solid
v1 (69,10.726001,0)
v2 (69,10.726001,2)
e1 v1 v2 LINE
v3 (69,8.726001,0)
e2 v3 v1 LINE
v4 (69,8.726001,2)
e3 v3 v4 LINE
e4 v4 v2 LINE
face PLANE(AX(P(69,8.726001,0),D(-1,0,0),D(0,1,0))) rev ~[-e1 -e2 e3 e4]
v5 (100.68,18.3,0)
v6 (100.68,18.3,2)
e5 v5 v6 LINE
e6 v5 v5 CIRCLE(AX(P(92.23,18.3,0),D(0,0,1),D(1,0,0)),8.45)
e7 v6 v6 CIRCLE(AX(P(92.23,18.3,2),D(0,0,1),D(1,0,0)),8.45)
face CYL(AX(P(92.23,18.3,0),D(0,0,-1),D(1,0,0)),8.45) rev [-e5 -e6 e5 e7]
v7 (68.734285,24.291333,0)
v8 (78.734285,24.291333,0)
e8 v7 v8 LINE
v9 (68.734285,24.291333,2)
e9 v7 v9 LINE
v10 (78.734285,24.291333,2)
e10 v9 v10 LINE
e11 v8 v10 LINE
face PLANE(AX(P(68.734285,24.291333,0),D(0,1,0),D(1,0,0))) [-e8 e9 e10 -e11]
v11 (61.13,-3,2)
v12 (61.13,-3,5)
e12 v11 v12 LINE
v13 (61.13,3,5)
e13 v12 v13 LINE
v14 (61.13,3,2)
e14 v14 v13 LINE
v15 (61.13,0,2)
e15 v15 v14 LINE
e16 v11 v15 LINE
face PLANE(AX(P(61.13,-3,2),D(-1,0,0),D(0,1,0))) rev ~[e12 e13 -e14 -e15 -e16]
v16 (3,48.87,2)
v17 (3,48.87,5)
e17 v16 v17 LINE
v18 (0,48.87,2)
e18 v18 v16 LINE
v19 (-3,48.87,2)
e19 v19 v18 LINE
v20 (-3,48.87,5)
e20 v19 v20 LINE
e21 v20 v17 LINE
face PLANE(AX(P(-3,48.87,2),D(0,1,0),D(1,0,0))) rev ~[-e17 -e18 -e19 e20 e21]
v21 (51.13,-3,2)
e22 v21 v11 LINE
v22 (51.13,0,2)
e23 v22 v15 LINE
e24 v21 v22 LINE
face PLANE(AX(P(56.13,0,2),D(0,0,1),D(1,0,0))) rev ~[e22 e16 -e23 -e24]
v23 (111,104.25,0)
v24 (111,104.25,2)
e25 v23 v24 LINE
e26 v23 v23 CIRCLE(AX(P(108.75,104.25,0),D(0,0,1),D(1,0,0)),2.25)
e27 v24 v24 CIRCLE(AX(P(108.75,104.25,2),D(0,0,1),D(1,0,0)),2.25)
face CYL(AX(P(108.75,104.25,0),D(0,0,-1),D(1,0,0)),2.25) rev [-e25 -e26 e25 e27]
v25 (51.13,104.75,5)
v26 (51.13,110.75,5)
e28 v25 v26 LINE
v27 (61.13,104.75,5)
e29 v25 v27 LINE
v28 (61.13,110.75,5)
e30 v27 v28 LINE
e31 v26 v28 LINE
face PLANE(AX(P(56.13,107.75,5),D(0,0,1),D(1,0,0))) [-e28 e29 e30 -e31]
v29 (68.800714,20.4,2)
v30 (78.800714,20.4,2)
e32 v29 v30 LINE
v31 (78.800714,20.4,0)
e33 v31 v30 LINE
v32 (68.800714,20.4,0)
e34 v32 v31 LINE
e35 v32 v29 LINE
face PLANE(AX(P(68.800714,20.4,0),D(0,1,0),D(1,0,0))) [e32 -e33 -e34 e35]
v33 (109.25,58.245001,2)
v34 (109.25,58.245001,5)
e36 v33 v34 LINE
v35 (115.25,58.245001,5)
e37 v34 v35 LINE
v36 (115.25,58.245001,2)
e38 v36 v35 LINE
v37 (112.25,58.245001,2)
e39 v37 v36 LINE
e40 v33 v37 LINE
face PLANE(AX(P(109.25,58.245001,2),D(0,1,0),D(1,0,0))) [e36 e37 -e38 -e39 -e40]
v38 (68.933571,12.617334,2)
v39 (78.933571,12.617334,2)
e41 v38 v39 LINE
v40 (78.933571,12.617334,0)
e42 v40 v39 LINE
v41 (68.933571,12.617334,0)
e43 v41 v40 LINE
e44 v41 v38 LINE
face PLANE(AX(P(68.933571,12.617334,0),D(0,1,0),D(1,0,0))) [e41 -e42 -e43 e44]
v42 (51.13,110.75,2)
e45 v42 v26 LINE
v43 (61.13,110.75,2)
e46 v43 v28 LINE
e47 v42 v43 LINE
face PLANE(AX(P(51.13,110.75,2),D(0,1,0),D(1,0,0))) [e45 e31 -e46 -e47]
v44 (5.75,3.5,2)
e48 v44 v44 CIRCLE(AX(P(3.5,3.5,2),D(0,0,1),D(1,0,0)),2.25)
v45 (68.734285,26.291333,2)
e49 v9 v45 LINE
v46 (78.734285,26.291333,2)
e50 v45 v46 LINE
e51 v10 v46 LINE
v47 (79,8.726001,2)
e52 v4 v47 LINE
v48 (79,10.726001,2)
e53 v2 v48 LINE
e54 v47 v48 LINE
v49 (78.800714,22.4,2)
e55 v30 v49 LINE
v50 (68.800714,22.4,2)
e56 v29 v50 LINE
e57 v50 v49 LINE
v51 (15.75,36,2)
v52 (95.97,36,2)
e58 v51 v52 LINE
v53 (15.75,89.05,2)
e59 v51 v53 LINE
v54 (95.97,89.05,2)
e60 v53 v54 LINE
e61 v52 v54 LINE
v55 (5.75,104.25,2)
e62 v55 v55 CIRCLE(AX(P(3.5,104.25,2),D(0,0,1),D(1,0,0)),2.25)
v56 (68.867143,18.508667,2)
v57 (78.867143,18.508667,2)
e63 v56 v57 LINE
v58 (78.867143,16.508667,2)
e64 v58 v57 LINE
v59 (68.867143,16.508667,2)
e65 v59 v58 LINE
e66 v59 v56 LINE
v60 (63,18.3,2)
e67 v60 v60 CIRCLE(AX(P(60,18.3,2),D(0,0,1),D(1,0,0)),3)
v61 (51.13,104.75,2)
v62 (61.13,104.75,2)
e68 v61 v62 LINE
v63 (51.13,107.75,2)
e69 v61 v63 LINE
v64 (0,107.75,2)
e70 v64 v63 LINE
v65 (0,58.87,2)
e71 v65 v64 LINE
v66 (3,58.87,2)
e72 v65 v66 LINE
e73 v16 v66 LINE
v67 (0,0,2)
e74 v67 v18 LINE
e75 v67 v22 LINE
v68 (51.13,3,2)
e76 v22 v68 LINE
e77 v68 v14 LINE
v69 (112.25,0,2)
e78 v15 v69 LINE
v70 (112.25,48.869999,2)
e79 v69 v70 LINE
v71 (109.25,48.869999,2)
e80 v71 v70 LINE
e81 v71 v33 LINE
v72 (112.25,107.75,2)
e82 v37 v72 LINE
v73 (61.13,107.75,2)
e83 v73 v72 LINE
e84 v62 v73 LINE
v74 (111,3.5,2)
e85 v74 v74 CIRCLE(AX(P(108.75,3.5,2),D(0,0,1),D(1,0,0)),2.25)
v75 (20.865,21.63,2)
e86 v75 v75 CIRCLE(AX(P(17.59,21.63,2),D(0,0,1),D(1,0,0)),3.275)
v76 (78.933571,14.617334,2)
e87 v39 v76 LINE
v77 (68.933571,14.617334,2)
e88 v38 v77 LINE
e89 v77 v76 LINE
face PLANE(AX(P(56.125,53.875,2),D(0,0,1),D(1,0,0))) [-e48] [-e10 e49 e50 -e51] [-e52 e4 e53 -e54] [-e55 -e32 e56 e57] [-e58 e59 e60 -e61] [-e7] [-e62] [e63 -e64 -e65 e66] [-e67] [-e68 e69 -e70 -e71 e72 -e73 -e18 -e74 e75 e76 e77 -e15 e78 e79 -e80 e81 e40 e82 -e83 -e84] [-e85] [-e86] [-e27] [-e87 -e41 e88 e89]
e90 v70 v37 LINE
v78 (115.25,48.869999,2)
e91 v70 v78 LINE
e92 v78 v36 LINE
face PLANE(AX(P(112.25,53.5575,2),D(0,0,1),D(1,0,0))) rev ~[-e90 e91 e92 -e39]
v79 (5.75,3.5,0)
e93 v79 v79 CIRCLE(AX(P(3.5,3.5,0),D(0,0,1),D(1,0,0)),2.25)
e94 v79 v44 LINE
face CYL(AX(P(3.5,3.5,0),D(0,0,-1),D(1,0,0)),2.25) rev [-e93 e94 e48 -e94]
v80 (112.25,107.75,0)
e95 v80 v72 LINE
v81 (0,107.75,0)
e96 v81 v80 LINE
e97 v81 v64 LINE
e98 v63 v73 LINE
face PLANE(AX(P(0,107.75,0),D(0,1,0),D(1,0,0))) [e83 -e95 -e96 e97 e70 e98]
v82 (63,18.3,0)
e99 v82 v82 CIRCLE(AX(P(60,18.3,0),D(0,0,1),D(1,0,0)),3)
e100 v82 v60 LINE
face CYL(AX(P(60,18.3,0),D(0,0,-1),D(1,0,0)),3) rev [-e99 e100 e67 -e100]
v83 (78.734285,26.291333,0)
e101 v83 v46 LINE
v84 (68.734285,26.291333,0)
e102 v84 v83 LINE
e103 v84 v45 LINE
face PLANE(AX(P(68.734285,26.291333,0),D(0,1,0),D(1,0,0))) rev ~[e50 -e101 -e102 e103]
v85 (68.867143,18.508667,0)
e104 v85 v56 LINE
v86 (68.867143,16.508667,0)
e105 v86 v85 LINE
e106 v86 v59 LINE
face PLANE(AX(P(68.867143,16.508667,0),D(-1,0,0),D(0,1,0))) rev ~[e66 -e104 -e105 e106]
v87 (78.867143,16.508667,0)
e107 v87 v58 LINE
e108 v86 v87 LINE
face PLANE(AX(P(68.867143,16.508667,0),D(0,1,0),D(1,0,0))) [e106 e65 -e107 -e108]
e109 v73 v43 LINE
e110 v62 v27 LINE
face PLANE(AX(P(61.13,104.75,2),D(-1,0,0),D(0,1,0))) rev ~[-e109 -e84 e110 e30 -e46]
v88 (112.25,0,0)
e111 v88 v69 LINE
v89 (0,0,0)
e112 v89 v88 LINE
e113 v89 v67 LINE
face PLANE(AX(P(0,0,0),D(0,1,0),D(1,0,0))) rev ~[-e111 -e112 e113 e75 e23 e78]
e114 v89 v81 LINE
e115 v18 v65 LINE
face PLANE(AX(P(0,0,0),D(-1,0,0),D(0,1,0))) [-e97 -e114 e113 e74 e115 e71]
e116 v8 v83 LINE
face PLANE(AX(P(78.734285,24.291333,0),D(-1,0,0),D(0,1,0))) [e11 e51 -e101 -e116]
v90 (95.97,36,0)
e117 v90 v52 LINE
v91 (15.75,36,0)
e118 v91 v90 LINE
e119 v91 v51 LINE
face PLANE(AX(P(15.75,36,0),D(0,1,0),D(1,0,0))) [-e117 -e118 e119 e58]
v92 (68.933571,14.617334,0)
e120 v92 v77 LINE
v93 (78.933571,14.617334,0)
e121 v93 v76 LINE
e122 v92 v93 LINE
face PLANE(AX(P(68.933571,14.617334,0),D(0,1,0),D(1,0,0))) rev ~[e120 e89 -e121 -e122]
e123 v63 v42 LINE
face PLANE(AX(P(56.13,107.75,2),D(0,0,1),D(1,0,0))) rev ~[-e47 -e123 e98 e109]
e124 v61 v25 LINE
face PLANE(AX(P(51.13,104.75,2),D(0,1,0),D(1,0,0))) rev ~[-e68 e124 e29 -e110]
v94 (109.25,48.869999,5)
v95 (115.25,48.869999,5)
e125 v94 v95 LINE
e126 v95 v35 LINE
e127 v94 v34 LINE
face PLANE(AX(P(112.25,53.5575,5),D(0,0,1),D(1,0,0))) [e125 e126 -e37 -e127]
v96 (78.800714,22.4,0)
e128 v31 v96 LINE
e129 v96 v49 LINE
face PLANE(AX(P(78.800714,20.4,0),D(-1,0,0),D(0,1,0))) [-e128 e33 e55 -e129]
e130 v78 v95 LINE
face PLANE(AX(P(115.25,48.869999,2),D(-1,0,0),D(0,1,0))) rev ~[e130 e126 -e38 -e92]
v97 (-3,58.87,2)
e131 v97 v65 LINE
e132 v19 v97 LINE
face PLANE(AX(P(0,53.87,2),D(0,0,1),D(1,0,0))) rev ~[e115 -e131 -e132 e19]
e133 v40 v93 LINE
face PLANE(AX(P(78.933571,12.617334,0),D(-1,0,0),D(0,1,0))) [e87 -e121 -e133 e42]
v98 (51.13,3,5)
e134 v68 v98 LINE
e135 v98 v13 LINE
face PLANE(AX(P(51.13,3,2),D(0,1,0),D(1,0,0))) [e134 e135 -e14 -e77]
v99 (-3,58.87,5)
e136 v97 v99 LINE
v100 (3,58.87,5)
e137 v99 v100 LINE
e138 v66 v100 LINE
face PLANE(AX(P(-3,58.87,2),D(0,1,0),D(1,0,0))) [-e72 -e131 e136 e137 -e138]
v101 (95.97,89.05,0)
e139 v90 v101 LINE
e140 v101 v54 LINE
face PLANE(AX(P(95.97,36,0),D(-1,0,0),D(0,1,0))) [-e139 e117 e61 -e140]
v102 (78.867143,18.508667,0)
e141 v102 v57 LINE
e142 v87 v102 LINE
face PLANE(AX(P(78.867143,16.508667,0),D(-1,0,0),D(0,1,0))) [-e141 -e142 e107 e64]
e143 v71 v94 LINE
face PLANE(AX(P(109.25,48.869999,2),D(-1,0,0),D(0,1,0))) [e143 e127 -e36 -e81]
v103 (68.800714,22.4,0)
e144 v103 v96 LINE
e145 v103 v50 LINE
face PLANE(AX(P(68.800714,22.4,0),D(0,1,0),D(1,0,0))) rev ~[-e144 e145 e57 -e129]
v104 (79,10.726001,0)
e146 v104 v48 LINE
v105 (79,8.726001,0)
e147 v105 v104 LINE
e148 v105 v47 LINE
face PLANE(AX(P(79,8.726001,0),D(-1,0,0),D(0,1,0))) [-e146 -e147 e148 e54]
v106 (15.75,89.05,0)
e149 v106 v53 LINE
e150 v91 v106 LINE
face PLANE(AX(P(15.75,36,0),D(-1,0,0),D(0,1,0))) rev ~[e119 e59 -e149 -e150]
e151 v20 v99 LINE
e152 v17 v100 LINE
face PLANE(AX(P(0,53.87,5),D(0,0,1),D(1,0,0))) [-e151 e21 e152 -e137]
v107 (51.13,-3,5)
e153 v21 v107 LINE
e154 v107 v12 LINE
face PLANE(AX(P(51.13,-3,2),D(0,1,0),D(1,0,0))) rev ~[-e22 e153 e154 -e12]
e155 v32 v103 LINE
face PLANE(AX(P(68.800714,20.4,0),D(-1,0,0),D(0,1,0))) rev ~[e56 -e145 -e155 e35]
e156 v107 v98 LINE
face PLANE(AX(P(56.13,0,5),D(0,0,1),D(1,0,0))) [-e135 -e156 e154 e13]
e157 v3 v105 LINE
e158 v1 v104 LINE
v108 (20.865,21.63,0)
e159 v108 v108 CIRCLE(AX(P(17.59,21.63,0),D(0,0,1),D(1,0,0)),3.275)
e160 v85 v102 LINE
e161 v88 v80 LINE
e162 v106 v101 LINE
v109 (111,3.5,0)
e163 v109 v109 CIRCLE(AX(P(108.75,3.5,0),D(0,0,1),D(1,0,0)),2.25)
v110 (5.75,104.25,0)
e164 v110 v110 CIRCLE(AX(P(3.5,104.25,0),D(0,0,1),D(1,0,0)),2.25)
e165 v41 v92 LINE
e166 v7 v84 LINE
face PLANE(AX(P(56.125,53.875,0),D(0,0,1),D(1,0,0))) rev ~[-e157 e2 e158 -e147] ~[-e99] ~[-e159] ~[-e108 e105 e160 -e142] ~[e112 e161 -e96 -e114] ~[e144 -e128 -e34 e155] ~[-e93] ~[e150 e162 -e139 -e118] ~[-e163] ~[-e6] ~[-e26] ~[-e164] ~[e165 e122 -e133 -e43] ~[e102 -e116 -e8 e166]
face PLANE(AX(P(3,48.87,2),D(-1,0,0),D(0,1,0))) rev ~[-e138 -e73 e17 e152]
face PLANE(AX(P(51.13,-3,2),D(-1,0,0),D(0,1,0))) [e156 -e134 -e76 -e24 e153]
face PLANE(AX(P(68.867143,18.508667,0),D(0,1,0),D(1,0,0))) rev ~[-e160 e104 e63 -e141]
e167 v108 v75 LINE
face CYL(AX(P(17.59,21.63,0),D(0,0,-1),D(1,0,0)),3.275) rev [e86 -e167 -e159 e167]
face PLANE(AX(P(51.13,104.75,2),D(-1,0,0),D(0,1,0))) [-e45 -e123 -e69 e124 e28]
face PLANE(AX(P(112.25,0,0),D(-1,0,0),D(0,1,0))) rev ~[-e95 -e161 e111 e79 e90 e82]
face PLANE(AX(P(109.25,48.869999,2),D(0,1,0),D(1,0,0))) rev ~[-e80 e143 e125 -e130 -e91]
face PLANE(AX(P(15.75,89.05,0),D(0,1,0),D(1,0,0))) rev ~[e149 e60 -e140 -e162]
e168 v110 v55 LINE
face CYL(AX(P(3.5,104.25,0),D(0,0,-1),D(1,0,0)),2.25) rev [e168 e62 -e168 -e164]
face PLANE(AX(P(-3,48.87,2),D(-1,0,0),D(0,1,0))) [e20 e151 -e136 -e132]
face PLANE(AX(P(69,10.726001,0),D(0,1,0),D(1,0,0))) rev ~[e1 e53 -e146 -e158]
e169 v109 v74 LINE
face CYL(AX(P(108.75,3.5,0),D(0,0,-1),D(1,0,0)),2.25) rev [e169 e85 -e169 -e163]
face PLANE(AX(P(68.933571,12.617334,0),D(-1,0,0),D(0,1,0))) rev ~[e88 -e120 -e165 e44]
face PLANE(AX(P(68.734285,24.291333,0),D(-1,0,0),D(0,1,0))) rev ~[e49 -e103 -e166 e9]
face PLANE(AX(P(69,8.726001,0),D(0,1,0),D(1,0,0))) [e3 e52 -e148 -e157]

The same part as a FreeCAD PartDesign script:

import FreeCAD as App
import Part
import Sketcher

V = App.Vector


def add_polygon(sketch, points):
    """Adds a closed chain of lines whose ends are joined by coincident constraints."""
    first, n = sketch.GeometryCount, len(points)
    for a, b in zip(points, points[1:] + points[:1]):
        sketch.addGeometry(Part.LineSegment(App.Vector(*a, 0), App.Vector(*b, 0)), False)
    for i in range(n):
        sketch.addConstraint(Sketcher.Constraint("Coincident", first + i, 2, first + (i + 1) % n, 1))

doc = App.newDocument("Part")
body = doc.addObject("PartDesign::Body", "Body")

# Sketch on XY plane
sketch1 = body.newObject("Sketcher::SketchObject", "Sketch")
sketch1.AttachmentSupport = (doc.getObject("XY_Plane"), [""])
sketch1.MapMode = "FlatFace"
add_polygon(sketch1, [(0, 107.8), (0, 0), (112.2, 0), (112.2, 107.8)])  # lines 0-3
sketch1.addGeometry(Part.Circle(V(3.5, 3.5, 0), V(0, 0, 1), 2.2), False)  # 4
sketch1.addGeometry(Part.Circle(V(17.6, 21.6, 0), V(0, 0, 1), 3.3), False)  # 5
add_polygon(sketch1, [(79, 8.7), (69, 8.7), (69, 10.7), (79, 10.7)])  # lines 6-9
add_polygon(sketch1, [(78.9, 12.6), (68.9, 12.6), (68.9, 14.6), (78.9, 14.6)])  # lines 10-13
sketch1.addGeometry(Part.Circle(V(60, 18.3, 0), V(0, 0, 1), 3), False)  # 14
add_polygon(sketch1, [(78.9, 16.5), (68.9, 16.5), (68.9, 18.5), (78.9, 18.5)])  # lines 15-18
add_polygon(sketch1, [(78.8, 20.4), (68.8, 20.4), (68.8, 22.4), (78.8, 22.4)])  # lines 19-22
add_polygon(sketch1, [(78.7, 24.3), (68.7, 24.3), (68.7, 26.3), (78.7, 26.3)])  # lines 23-26
sketch1.addGeometry(Part.Circle(V(108.8, 3.5, 0), V(0, 0, 1), 2.2), False)  # 27
sketch1.addGeometry(Part.Circle(V(92.2, 18.3, 0), V(0, 0, 1), 8.4), False)  # 28
add_polygon(sketch1, [(96, 36), (15.8, 36), (15.8, 89), (96, 89)])  # lines 29-32
sketch1.addGeometry(Part.Circle(V(3.5, 104.2, 0), V(0, 0, 1), 2.2), False)  # 33
sketch1.addGeometry(Part.Circle(V(108.8, 104.2, 0), V(0, 0, 1), 2.2), False)  # 34
sketch1.addConstraint([
    Sketcher.Constraint("Vertical", 0),
    Sketcher.Constraint("Horizontal", 1),
    Sketcher.Constraint("Vertical", 2),
    Sketcher.Constraint("Horizontal", 3),
    Sketcher.Constraint("Horizontal", 6),
    Sketcher.Constraint("Vertical", 7),
    Sketcher.Constraint("Horizontal", 8),
    Sketcher.Constraint("Vertical", 9),
    Sketcher.Constraint("Horizontal", 10),
    Sketcher.Constraint("Vertical", 11),
    Sketcher.Constraint("Horizontal", 12),
    Sketcher.Constraint("Vertical", 13),
    Sketcher.Constraint("Horizontal", 15),
    Sketcher.Constraint("Vertical", 16),
    Sketcher.Constraint("Horizontal", 17),
    Sketcher.Constraint("Vertical", 18),
    Sketcher.Constraint("Horizontal", 19),
    Sketcher.Constraint("Vertical", 20),
    Sketcher.Constraint("Horizontal", 21),
    Sketcher.Constraint("Vertical", 22),
    Sketcher.Constraint("Horizontal", 23),
    Sketcher.Constraint("Vertical", 24),
    Sketcher.Constraint("Horizontal", 25),
    Sketcher.Constraint("Vertical", 26),
    Sketcher.Constraint("Horizontal", 29),
    Sketcher.Constraint("Vertical", 30),
    Sketcher.Constraint("Horizontal", 31),
    Sketcher.Constraint("Vertical", 32),
    Sketcher.Constraint("Coincident", 0, 2, -1, 1),
    Sketcher.Constraint("Equal", 4, 27),
    Sketcher.Constraint("Equal", 27, 33),
    Sketcher.Constraint("Equal", 33, 34),
    Sketcher.Constraint("Horizontal", 4, 3, 27, 3),
    Sketcher.Constraint("Horizontal", 14, 3, 28, 3),
    Sketcher.Constraint("Horizontal", 33, 3, 34, 3),
    Sketcher.Constraint("Vertical", 4, 3, 33, 3),
    Sketcher.Constraint("Vertical", 27, 3, 34, 3),
    Sketcher.Constraint("Equal", 8, 10),
    Sketcher.Constraint("Equal", 12, 15),
    Sketcher.Constraint("Equal", 17, 19),
    Sketcher.Constraint("Equal", 21, 23),
    Sketcher.Constraint("Equal", 9, 11),
    Sketcher.Constraint("Equal", 13, 16),
    Sketcher.Constraint("Equal", 18, 20),
    Sketcher.Constraint("Equal", 22, 24),
    Sketcher.Constraint("Diameter", 14, 6.0),
    Sketcher.Constraint("Diameter", 4, 4.5),
    Sketcher.Constraint("Diameter", 28, 16.9),
    Sketcher.Constraint("Diameter", 5, 6.55),
    Sketcher.Constraint("DistanceX", 6, 2, 6, 1, 10.0),
    Sketcher.Constraint("DistanceY", 7, 1, 7, 2, 2.0),
    Sketcher.Constraint("DistanceX", -1, 1, 14, 3, 60.0),
    Sketcher.Constraint("DistanceX", -1, 1, 6, 2, 69.0),
    Sketcher.Constraint("DistanceY", -1, 1, 29, 2, 36.0),
    Sketcher.Constraint("DistanceX", 1, 1, 1, 2, 112.25),
    Sketcher.Constraint("DistanceX", 29, 2, 29, 1, 80.22),
    Sketcher.Constraint("DistanceY", 0, 2, 0, 1, 107.75),
    Sketcher.Constraint("DistanceY", 30, 1, 30, 2, 53.05),
    Sketcher.Constraint("DistanceX", -1, 1, 4, 3, 3.5),
    Sketcher.Constraint("DistanceY", -1, 1, 4, 3, 3.5),
    Sketcher.Constraint("DistanceY", -1, 1, 14, 3, 18.3),
    Sketcher.Constraint("DistanceY", -1, 1, 19, 2, 20.4),
    Sketcher.Constraint("DistanceX", 27, 3, 1, 2, 3.5),
    Sketcher.Constraint("DistanceY", 34, 3, 2, 2, 3.5),
    Sketcher.Constraint("DistanceX", -1, 1, 5, 3, 17.59),
    Sketcher.Constraint("DistanceY", -1, 1, 5, 3, 21.63),
    Sketcher.Constraint("DistanceX", -1, 1, 28, 3, 92.23),
    Sketcher.Constraint("DistanceX", -1, 1, 29, 2, 15.75),
    Sketcher.Constraint("DistanceY", -1, 1, 6, 2, 8.726001),
    Sketcher.Constraint("DistanceY", 11, 2, 23, 2, 9.673999),
    Sketcher.Constraint("DistanceX", -1, 1, 10, 2, 68.933571),
    Sketcher.Constraint("DistanceX", 15, 2, 11, 2, 0.066428),
    Sketcher.Constraint("DistanceX", 19, 2, 16, 2, 0.066429),
    Sketcher.Constraint("DistanceX", 23, 2, 20, 2, 0.066429),
    Sketcher.Constraint("DistanceY", -1, 1, 10, 2, 12.617334),
    Sketcher.Constraint("DistanceY", -1, 1, 15, 2, 16.508667),
])
pad1 = body.newObject("PartDesign::Pad", "Pad")
pad1.Profile = sketch1
pad1.Length = 2

# Sketch on XY plane
sketch2 = body.newObject("Sketcher::SketchObject", "Sketch001")
sketch2.AttachmentSupport = (doc.getObject("XY_Plane"), [""])
sketch2.MapMode = "FlatFace"
sketch2.AttachmentOffset = App.Placement(V(0, 0, 2), App.Rotation())
add_polygon(sketch2, [(109, 58), (109, 49), (115, 49), (115, 58)])  # lines 0-3
add_polygon(sketch2, [(-3, 59), (-3, 49), (3, 49), (3, 59)])  # lines 4-7
add_polygon(sketch2, [(51, 111), (51, 105), (61, 105), (61, 111)])  # lines 8-11
add_polygon(sketch2, [(51, 3), (51, -3), (61, -3), (61, 3)])  # lines 12-15
sketch2.addConstraint([
    Sketcher.Constraint("Vertical", 0),
    Sketcher.Constraint("Horizontal", 1),
    Sketcher.Constraint("Vertical", 2),
    Sketcher.Constraint("Horizontal", 3),
    Sketcher.Constraint("Vertical", 4),
    Sketcher.Constraint("Horizontal", 5),
    Sketcher.Constraint("Vertical", 6),
    Sketcher.Constraint("Horizontal", 7),
    Sketcher.Constraint("Vertical", 8),
    Sketcher.Constraint("Horizontal", 9),
    Sketcher.Constraint("Vertical", 10),
    Sketcher.Constraint("Horizontal", 11),
    Sketcher.Constraint("Vertical", 12),
    Sketcher.Constraint("Horizontal", 13),
    Sketcher.Constraint("Vertical", 14),
    Sketcher.Constraint("Horizontal", 15),
    Sketcher.Constraint("Horizontal", 1, 2, 4, 2),
    Sketcher.Constraint("Vertical", 11, 2, 12, 2),
    Sketcher.Constraint("Vertical", 10, 2, 13, 2),
    Sketcher.Constraint("Equal", 3, 5),
    Sketcher.Constraint("Equal", 15, 4),
    Sketcher.Constraint("Equal", 7, 8),
    Sketcher.Constraint("Equal", 10, 12),
    Sketcher.Constraint("DistanceX", 1, 1, 1, 2, 6.0),
    Sketcher.Constraint("DistanceX", 9, 1, 9, 2, 10.0),
    Sketcher.Constraint("DistanceX", 4, 2, -1, 1, 3.0),
    Sketcher.Constraint("DistanceY", 12, 2, -1, 1, 3.0),
    Sketcher.Constraint("DistanceY", 0, 2, 0, 1, 9.375001),
    Sketcher.Constraint("DistanceX", -1, 1, 0, 2, 109.25),
    Sketcher.Constraint("DistanceY", -1, 1, 0, 2, 48.869999),
    Sketcher.Constraint("DistanceX", -1, 1, 8, 2, 51.13),
    Sketcher.Constraint("DistanceY", -1, 1, 8, 2, 104.75),
])
pad2 = body.newObject("PartDesign::Pad", "Pad001")
pad2.Profile = sketch2
pad2.Length = 3

doc.recompute()
